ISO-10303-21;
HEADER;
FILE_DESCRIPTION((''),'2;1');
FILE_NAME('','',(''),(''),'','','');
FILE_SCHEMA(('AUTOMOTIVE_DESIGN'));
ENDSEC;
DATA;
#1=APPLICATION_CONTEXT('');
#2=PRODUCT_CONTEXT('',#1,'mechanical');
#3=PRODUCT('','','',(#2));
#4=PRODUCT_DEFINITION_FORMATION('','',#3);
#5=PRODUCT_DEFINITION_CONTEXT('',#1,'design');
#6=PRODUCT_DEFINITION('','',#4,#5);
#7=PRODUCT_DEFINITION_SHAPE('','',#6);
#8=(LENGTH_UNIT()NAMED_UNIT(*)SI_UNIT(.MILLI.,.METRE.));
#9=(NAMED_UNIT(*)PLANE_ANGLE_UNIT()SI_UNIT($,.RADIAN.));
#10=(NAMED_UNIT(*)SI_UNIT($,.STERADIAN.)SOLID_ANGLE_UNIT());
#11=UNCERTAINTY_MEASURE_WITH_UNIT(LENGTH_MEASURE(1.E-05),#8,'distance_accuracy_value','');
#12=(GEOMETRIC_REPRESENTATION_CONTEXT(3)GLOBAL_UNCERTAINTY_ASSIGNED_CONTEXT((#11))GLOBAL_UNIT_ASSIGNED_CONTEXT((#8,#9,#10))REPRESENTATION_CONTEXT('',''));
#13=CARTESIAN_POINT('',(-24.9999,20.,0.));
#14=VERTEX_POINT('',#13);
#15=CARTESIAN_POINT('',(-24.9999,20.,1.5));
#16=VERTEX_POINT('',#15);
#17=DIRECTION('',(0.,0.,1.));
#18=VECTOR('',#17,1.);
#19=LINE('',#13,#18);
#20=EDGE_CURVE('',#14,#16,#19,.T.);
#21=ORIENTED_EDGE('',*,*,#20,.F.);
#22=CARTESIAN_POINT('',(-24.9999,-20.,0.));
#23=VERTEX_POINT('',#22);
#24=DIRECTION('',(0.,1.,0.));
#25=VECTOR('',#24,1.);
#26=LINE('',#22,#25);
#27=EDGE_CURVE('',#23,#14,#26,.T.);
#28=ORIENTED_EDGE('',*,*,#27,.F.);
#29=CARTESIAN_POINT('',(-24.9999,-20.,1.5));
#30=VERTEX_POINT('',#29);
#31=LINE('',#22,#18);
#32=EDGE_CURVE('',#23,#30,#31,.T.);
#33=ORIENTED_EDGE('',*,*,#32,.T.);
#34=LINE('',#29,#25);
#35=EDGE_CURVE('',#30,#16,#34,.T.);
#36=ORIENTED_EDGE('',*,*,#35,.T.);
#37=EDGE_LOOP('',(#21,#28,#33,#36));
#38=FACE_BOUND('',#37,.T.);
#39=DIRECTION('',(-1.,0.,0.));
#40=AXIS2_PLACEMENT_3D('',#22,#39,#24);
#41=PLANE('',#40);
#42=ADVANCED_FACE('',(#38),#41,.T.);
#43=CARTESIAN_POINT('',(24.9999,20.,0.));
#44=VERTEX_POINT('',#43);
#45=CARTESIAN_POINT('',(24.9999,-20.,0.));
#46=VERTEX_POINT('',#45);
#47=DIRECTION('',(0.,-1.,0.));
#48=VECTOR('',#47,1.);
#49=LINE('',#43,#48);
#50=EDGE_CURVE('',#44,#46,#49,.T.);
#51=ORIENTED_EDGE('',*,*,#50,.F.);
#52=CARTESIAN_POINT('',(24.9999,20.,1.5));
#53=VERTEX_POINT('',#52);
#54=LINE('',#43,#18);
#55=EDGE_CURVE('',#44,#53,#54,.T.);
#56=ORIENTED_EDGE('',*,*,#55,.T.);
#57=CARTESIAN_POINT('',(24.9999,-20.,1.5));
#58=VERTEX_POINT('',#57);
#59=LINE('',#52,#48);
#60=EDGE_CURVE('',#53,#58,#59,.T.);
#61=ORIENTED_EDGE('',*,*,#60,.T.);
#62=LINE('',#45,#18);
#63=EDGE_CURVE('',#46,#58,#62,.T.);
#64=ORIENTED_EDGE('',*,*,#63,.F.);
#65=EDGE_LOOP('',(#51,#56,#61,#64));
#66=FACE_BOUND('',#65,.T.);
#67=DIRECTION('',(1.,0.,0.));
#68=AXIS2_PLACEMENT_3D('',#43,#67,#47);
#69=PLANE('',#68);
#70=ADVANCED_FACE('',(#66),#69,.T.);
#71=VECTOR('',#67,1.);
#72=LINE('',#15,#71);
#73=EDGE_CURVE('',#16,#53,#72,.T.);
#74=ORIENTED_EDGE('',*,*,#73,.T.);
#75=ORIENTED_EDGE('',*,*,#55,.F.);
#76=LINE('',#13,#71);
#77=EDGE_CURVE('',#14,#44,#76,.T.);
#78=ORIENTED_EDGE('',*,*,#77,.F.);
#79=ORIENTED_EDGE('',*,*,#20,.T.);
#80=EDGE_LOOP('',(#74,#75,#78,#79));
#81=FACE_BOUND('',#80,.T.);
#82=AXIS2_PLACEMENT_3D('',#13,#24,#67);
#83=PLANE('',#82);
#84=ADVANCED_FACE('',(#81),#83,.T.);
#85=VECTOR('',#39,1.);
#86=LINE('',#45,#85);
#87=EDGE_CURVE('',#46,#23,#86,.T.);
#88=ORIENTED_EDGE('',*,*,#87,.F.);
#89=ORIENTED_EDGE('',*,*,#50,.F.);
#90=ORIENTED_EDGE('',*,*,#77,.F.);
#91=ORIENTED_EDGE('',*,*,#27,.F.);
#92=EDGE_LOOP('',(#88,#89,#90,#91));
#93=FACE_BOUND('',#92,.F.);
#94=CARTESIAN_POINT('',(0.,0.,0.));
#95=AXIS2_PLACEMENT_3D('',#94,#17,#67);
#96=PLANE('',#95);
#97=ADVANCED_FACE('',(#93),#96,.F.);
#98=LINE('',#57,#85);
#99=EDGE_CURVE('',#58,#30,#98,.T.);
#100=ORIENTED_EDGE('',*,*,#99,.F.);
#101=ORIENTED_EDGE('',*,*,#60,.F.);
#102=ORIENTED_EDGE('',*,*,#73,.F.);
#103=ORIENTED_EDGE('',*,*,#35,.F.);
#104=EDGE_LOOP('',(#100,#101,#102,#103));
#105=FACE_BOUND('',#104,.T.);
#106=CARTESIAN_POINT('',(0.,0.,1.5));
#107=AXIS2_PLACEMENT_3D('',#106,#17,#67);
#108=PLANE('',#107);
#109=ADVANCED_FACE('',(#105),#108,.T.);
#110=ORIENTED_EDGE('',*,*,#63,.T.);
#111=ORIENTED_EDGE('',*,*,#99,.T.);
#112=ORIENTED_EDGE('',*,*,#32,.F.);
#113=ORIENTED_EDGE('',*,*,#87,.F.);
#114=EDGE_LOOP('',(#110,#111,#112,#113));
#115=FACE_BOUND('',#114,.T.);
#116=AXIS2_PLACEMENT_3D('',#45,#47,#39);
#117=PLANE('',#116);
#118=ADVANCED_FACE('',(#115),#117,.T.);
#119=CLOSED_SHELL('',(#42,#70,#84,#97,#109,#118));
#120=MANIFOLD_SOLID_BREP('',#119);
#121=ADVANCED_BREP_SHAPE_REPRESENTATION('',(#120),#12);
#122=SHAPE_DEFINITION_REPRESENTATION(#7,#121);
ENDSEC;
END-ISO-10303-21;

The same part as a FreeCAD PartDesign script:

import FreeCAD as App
import Part
import Sketcher

V = App.Vector
Q = App.Units.Quantity


def add_polygon(sketch, points):
    """Adds a closed chain of lines whose ends are joined by coincident constraints."""
    first, n = sketch.GeometryCount, len(points)
    for a, b in zip(points, points[1:] + points[:1]):
        sketch.addGeometry(Part.LineSegment(App.Vector(*a, 0), App.Vector(*b, 0)), False)
    for i in range(n):
        sketch.addConstraint(Sketcher.Constraint("Coincident", first + i, 2, first + (i + 1) % n, 1))

doc = App.newDocument("Part")
body = doc.addObject("PartDesign::Body", "Body")

# Sketch on XY plane
sketch1 = body.newObject("Sketcher::SketchObject", "Sketch")
sketch1.AttachmentSupport = (doc.getObject("XY_Plane"), [""])
sketch1.MapMode = "FlatFace"
add_polygon(sketch1, [(-24.9999, -20), (24.9999, -20), (24.9999, 20), (-24.9999, 20)])  # lines 0-3
sketch1.addConstraint([
    Sketcher.Constraint("Horizontal", 0),
    Sketcher.Constraint("Vertical", 1),
    Sketcher.Constraint("Horizontal", 2),
    Sketcher.Constraint("Vertical", 3),
    Sketcher.Constraint("Symmetric", 0, 2, 2, 2, -1, 1),
    Sketcher.Constraint("DistanceY", 1, 1, 1, 2, Q("40 mm")),
    Sketcher.Constraint("DistanceX", -1, 1, 0, 2, Q("25 mm")),
])
pad1 = body.newObject("PartDesign::Pad", "Pad")
pad1.Profile = sketch1
pad1.Length = 1.5

doc.recompute()
